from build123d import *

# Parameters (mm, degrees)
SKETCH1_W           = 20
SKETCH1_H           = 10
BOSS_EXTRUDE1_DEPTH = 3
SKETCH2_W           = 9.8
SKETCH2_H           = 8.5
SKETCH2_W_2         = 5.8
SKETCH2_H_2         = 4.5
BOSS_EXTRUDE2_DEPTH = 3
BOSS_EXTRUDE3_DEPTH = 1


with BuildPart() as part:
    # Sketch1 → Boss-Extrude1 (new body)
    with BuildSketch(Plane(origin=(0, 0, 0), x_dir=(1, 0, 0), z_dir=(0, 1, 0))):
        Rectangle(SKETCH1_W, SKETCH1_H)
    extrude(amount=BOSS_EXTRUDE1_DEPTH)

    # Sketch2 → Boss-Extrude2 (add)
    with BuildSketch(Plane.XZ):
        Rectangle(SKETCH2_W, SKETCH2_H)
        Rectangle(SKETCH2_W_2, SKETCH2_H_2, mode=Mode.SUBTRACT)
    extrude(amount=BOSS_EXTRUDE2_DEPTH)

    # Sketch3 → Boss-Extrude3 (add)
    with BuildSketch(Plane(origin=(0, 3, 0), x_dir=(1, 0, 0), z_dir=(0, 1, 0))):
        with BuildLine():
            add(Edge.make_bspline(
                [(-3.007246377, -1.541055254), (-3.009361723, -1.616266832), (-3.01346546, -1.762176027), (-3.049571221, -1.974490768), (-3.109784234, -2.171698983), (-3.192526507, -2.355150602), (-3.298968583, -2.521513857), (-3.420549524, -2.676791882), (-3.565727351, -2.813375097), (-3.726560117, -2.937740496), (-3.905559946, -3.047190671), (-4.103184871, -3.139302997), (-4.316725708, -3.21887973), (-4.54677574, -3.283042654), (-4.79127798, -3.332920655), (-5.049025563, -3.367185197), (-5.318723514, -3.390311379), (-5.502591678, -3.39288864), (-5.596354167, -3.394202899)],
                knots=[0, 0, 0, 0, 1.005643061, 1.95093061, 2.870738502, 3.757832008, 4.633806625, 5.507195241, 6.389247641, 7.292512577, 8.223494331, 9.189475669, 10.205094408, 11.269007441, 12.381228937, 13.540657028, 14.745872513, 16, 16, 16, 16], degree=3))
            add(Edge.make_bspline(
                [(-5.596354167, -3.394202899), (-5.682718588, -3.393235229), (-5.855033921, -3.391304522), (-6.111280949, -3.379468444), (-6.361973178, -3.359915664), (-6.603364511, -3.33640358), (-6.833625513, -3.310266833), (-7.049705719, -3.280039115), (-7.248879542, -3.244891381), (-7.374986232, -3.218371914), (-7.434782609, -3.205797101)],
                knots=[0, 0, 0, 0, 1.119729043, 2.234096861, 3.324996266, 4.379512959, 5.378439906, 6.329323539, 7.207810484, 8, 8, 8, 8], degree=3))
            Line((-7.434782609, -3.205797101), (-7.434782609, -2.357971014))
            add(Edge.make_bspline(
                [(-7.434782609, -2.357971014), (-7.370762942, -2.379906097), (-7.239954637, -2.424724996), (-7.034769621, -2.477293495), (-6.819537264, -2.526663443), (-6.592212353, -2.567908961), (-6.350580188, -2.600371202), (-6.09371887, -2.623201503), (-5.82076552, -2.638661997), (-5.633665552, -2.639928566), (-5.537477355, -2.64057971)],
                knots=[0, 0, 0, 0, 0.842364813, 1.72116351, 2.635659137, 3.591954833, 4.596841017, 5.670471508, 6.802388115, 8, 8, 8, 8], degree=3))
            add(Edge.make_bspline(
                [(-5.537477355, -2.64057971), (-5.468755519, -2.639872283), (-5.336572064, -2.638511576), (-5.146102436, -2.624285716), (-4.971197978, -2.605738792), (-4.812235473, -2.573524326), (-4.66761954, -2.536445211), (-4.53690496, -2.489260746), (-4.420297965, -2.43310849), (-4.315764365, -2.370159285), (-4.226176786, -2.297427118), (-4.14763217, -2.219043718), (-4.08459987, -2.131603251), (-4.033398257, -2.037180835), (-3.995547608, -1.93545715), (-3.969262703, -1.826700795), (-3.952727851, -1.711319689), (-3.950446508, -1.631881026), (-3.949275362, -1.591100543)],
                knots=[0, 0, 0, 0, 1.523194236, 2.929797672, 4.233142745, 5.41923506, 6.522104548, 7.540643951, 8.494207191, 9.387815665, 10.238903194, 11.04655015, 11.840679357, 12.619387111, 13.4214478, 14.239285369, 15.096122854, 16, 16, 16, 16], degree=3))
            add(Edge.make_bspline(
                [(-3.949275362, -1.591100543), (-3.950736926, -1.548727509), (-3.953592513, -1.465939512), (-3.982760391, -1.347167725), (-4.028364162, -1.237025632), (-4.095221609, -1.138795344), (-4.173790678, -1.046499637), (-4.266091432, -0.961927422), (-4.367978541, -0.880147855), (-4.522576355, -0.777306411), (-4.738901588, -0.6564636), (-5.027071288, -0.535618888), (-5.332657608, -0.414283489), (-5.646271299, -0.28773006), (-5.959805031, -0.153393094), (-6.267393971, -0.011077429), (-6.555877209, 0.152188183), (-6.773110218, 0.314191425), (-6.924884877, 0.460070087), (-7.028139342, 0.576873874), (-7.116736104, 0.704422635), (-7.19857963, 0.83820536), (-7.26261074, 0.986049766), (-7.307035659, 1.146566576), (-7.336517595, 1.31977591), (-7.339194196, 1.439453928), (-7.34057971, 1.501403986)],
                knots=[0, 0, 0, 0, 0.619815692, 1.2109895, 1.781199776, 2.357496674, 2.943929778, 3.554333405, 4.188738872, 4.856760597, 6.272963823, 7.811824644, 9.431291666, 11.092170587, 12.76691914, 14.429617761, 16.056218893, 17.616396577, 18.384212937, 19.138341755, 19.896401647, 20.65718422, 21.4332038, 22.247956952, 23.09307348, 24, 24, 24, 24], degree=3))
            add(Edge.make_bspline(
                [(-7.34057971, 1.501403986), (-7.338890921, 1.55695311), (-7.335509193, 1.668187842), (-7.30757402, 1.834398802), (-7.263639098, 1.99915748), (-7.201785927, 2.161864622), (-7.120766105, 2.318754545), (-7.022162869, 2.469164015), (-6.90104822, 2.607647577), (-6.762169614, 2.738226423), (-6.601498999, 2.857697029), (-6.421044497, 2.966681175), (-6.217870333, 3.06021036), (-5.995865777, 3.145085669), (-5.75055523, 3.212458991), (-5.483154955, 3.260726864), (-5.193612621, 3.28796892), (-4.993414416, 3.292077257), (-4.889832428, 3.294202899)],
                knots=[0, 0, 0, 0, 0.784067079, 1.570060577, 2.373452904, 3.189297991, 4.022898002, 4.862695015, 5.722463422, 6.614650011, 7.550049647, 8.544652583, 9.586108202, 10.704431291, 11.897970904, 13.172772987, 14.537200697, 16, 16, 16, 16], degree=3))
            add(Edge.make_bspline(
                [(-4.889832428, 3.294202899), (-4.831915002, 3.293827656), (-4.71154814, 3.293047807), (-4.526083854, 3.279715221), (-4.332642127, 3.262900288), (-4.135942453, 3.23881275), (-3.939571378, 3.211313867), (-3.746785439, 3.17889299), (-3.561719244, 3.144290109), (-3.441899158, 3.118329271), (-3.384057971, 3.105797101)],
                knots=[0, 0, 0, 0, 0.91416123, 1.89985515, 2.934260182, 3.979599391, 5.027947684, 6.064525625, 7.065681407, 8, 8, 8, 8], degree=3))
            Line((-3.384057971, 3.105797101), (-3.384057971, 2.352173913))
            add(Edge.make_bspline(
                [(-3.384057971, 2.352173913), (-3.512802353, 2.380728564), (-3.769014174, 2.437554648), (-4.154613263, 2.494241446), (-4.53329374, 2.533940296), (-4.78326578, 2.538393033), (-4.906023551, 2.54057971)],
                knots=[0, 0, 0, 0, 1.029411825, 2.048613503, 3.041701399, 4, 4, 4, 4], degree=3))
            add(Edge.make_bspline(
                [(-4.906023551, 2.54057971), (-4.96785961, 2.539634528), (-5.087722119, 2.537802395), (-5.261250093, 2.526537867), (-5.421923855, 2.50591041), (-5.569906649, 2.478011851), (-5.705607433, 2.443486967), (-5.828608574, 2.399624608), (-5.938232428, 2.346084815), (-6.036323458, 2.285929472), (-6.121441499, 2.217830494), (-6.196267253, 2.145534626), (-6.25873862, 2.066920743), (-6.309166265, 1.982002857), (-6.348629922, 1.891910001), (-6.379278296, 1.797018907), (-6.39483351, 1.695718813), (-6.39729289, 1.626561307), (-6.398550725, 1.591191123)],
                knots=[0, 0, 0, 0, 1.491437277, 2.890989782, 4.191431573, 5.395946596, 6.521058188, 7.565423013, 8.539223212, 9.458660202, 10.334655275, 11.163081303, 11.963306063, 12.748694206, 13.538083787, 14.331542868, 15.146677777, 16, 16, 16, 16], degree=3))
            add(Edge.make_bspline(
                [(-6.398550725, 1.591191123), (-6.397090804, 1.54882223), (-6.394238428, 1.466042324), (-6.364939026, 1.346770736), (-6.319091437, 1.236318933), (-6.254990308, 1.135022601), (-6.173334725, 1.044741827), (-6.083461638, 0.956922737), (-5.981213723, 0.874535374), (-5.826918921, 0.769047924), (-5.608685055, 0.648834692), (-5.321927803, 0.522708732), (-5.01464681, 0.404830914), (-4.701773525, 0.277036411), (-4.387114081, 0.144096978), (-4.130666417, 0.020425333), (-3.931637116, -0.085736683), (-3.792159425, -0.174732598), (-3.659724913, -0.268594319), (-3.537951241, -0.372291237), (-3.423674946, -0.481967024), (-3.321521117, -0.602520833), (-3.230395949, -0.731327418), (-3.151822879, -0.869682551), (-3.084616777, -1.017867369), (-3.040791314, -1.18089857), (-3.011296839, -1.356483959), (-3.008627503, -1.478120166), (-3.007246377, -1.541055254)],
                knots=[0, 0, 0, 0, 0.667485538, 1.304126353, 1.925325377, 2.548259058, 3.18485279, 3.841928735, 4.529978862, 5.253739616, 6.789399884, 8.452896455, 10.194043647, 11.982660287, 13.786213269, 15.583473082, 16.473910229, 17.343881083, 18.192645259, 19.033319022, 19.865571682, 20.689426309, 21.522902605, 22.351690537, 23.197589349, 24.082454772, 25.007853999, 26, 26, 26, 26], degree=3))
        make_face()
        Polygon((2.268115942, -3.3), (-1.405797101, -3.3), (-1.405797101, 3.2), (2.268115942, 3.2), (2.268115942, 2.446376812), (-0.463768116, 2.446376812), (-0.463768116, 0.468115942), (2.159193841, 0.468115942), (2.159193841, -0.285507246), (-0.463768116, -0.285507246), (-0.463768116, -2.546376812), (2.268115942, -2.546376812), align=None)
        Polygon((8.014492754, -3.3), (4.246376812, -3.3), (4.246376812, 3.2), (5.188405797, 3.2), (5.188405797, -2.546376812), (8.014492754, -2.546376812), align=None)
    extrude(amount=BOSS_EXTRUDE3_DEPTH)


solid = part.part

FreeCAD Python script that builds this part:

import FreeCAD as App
import Part
import Sketcher

V = App.Vector

doc = App.newDocument("Part")
params = doc.addObject("Spreadsheet::Sheet", "Params")
for row, (alias, value) in enumerate([
    ("sketch1_width", "20 mm"),
    ("sketch1_height", "10 mm"),
    ("pad1_length", "3 mm"),
    ("sketch2_width", "9.8 mm"),
    ("sketch2_width2", "5.8 mm"),
    ("sketch2_height", "8.5 mm"),
    ("sketch2_height2", "4.5 mm"),
    ("pad2_length", "3 mm"),
    ("sketch3_height", "6.5 mm"),
    ("pad3_length", "1 mm"),
], start=1):
    params.set(f"A{row}", alias)
    params.set(f"B{row}", "=" + value)
    params.setAlias(f"B{row}", alias)

body = doc.addObject("PartDesign::Body", "Body")

# Sketch on XZ plane
sketch1 = body.newObject("Sketcher::SketchObject", "Sketch")
sketch1.AttachmentSupport = (doc.getObject("XZ_Plane"), [""])
sketch1.MapMode = "FlatFace"
sketch1.addGeometry([
    Part.LineSegment(V(-10, -5, 0), V(-10, 5, 0)),
    Part.LineSegment(V(-10, 5, 0), V(10, 5, 0)),
    Part.LineSegment(V(10, 5, 0), V(10, -5, 0)),
    Part.LineSegment(V(10, -5, 0), V(-10, -5, 0)),
], False)
sketch1.addConstraint([
    Sketcher.Constraint("Coincident", 0, 2, 1, 1),
    Sketcher.Constraint("Coincident", 1, 2, 2, 1),
    Sketcher.Constraint("Coincident", 2, 2, 3, 1),
    Sketcher.Constraint("Coincident", 3, 2, 0, 1),
    Sketcher.Constraint("Vertical", 0),
    Sketcher.Constraint("Horizontal", 1),
    Sketcher.Constraint("Vertical", 2),
    Sketcher.Constraint("Horizontal", 3),
    Sketcher.Constraint("Symmetric", 0, 2, 2, 2, -1, 1),
    Sketcher.Constraint("DistanceX", 1, 1, 1, 2, 20.0),
    Sketcher.Constraint("DistanceY", 0, 1, 0, 2, 10.0),
])
sketch1.setExpression("Constraints[9]", "Params.sketch1_width")
sketch1.setExpression("Constraints[10]", "Params.sketch1_height")
pad1 = body.newObject("PartDesign::Pad", "Pad")
pad1.Profile = sketch1
pad1.setExpression("Length", "Params.pad1_length")
pad1.Reversed = True

# Sketch on XZ plane
sketch2 = body.newObject("Sketcher::SketchObject", "Sketch001")
sketch2.AttachmentSupport = (doc.getObject("XZ_Plane"), [""])
sketch2.MapMode = "FlatFace"
sketch2.addGeometry([
    Part.LineSegment(V(-4.9, 4.2, 0), V(-4.9, -4.2, 0)),  # 0
    Part.LineSegment(V(-4.9, -4.2, 0), V(4.9, -4.2, 0)),  # 1
    Part.LineSegment(V(4.9, -4.2, 0), V(4.9, 4.2, 0)),  # 2
    Part.LineSegment(V(4.9, 4.2, 0), V(-4.9, 4.2, 0)),  # 3
    Part.LineSegment(V(2.9, -2.2, 0), V(-2.9, -2.2, 0)),  # 4
    Part.LineSegment(V(-2.9, -2.2, 0), V(-2.9, 2.2, 0)),  # 5
    Part.LineSegment(V(-2.9, 2.2, 0), V(2.9, 2.2, 0)),  # 6
    Part.LineSegment(V(2.9, 2.2, 0), V(2.9, -2.2, 0)),  # 7
], False)
sketch2.addConstraint([
    Sketcher.Constraint("Coincident", 0, 2, 1, 1),
    Sketcher.Constraint("Coincident", 1, 2, 2, 1),
    Sketcher.Constraint("Coincident", 2, 2, 3, 1),
    Sketcher.Constraint("Coincident", 3, 2, 0, 1),
    Sketcher.Constraint("Coincident", 4, 2, 5, 1),
    Sketcher.Constraint("Coincident", 5, 2, 6, 1),
    Sketcher.Constraint("Coincident", 6, 2, 7, 1),
    Sketcher.Constraint("Coincident", 7, 2, 4, 1),
    Sketcher.Constraint("Vertical", 0),
    Sketcher.Constraint("Horizontal", 1),
    Sketcher.Constraint("Vertical", 2),
    Sketcher.Constraint("Horizontal", 3),
    Sketcher.Constraint("Horizontal", 4),
    Sketcher.Constraint("Vertical", 5),
    Sketcher.Constraint("Horizontal", 6),
    Sketcher.Constraint("Vertical", 7),
    Sketcher.Constraint("Symmetric", 0, 2, 2, 2, -1, 1),
    Sketcher.Constraint("Symmetric", 4, 2, 6, 2, -1, 1),
    Sketcher.Constraint("DistanceX", 1, 1, 1, 2, 9.8),
    Sketcher.Constraint("DistanceX", 4, 2, 4, 1, 5.8),
    Sketcher.Constraint("DistanceY", 0, 2, 0, 1, 8.5),
    Sketcher.Constraint("DistanceY", 5, 1, 5, 2, 4.5),
])
sketch2.setExpression("Constraints[18]", "Params.sketch2_width")
sketch2.setExpression("Constraints[19]", "Params.sketch2_width2")
sketch2.setExpression("Constraints[20]", "Params.sketch2_height")
sketch2.setExpression("Constraints[21]", "Params.sketch2_height2")
pad2 = body.newObject("PartDesign::Pad", "Pad001")
pad2.Profile = sketch2
pad2.setExpression("Length", "Params.pad2_length")

# Sketch on XZ plane
sketch3 = body.newObject("Sketcher::SketchObject", "Sketch002")
sketch3.AttachmentSupport = (doc.getObject("XZ_Plane"), [""])
sketch3.MapMode = "FlatFace"
sketch3.AttachmentOffset = App.Placement(V(0, 0, -3), App.Rotation())
sketch3.addGeometry([
    Part.BSplineCurve([V(-3.007246, 1.541055, 0), V(-3.009362, 1.616267, 0), V(-3.013465, 1.762176, 0), V(-3.049571, 1.974491, 0), V(-3.109784, 2.171699, 0), V(-3.192527, 2.355151, 0), V(-3.298969, 2.521514, 0), V(-3.42055, 2.676792, 0), V(-3.565727, 2.813375, 0), V(-3.72656, 2.93774, 0), V(-3.90556, 3.047191, 0), V(-4.103185, 3.139303, 0), V(-4.316726, 3.21888, 0), V(-4.546776, 3.283043, 0), V(-4.791278, 3.332921, 0), V(-5.049026, 3.367185, 0), V(-5.318724, 3.390311, 0), V(-5.502592, 3.392889, 0), V(-5.596354, 3.394203, 0)], [4, 1, 1, 1, 1, 1, 1, 1, 1, 1, 1, 1, 1, 1, 1, 1, 4], [0, 1.005643061, 1.95093061, 2.870738502, 3.757832008, 4.633806625, 5.507195241, 6.389247641, 7.292512577, 8.223494331, 9.189475669, 10.205094408, 11.269007441, 12.381228937, 13.540657028, 14.745872513, 16], False, 3, [1, 1, 1, 1, 1, 1, 1, 1, 1, 1, 1, 1, 1, 1, 1, 1, 1, 1, 1], False),  # 0
    Part.BSplineCurve([V(-6.398551, -1.591191, 0), V(-6.397091, -1.548822, 0), V(-6.394238, -1.466042, 0), V(-6.364939, -1.346771, 0), V(-6.319091, -1.236319, 0), V(-6.25499, -1.135023, 0), V(-6.173335, -1.044742, 0), V(-6.083462, -0.956923, 0), V(-5.981214, -0.874535, 0), V(-5.826919, -0.769048, 0), V(-5.608685, -0.648835, 0), V(-5.321928, -0.522709, 0), V(-5.014647, -0.404831, 0), V(-4.701774, -0.277036, 0), V(-4.387114, -0.144097, 0), V(-4.130666, -0.020425, 0), V(-3.931637, 0.085737, 0), V(-3.792159, 0.174733, 0), V(-3.659725, 0.268594, 0), V(-3.537951, 0.372291, 0), V(-3.423675, 0.481967, 0), V(-3.321521, 0.602521, 0), V(-3.230396, 0.731327, 0), V(-3.151823, 0.869683, 0), V(-3.084617, 1.017867, 0), V(-3.040791, 1.180899, 0), V(-3.011297, 1.356484, 0), V(-3.008628, 1.47812, 0), V(-3.007246, 1.541055, 0)], [4, 1, 1, 1, 1, 1, 1, 1, 1, 1, 1, 1, 1, 1, 1, 1, 1, 1, 1, 1, 1, 1, 1, 1, 1, 1, 4], [0, 0.667485538, 1.304126353, 1.925325377, 2.548259058, 3.18485279, 3.841928735, 4.529978862, 5.253739616, 6.789399884, 8.452896455, 10.194043647, 11.982660287, 13.786213269, 15.583473082, 16.473910229, 17.343881083, 18.192645259, 19.033319022, 19.865571682, 20.689426309, 21.522902605, 22.351690537, 23.197589349, 24.082454772, 25.007853999, 26], False, 3, [1, 1, 1, 1, 1, 1, 1, 1, 1, 1, 1, 1, 1, 1, 1, 1, 1, 1, 1, 1, 1, 1, 1, 1, 1, 1, 1, 1, 1], False),  # 1
    Part.BSplineCurve([V(-4.906024, -2.54058, 0), V(-4.96786, -2.539635, 0), V(-5.087722, -2.537802, 0), V(-5.26125, -2.526538, 0), V(-5.421924, -2.50591, 0), V(-5.569907, -2.478012, 0), V(-5.705607, -2.443487, 0), V(-5.828609, -2.399625, 0), V(-5.938232, -2.346085, 0), V(-6.036323, -2.285929, 0), V(-6.121441, -2.21783, 0), V(-6.196267, -2.145535, 0), V(-6.258739, -2.066921, 0), V(-6.309166, -1.982003, 0), V(-6.34863, -1.89191, 0), V(-6.379278, -1.797019, 0), V(-6.394834, -1.695719, 0), V(-6.397293, -1.626561, 0), V(-6.398551, -1.591191, 0)], [4, 1, 1, 1, 1, 1, 1, 1, 1, 1, 1, 1, 1, 1, 1, 1, 4], [0, 1.491437277, 2.890989782, 4.191431573, 5.395946596, 6.521058188, 7.565423013, 8.539223212, 9.458660202, 10.334655275, 11.163081303, 11.963306063, 12.748694206, 13.538083787, 14.331542868, 15.146677777, 16], False, 3, [1, 1, 1, 1, 1, 1, 1, 1, 1, 1, 1, 1, 1, 1, 1, 1, 1, 1, 1], False),  # 2
    Part.BSplineCurve([V(-3.384058, -2.352174, 0), V(-3.512802, -2.380729, 0), V(-3.769014, -2.437555, 0), V(-4.154613, -2.494241, 0), V(-4.533294, -2.53394, 0), V(-4.783266, -2.538393, 0), V(-4.906024, -2.54058, 0)], [4, 1, 1, 1, 4], [0, 1.029411825, 2.048613503, 3.041701399, 4], False, 3, [1, 1, 1, 1, 1, 1, 1], False),  # 3
    Part.LineSegment(V(-3.384058, -2.352174, 0), V(-3.384058, -3.105797, 0)),  # 4
    Part.BSplineCurve([V(-4.889832, -3.294203, 0), V(-4.831915, -3.293828, 0), V(-4.711548, -3.293048, 0), V(-4.526084, -3.279715, 0), V(-4.332642, -3.2629, 0), V(-4.135942, -3.238813, 0), V(-3.939571, -3.211314, 0), V(-3.746785, -3.178893, 0), V(-3.561719, -3.14429, 0), V(-3.441899, -3.118329, 0), V(-3.384058, -3.105797, 0)], [4, 1, 1, 1, 1, 1, 1, 1, 4], [0, 0.91416123, 1.89985515, 2.934260182, 3.979599391, 5.027947684, 6.064525625, 7.065681407, 8], False, 3, [1, 1, 1, 1, 1, 1, 1, 1, 1, 1, 1], False),  # 5
    Part.BSplineCurve([V(-7.34058, -1.501404, 0), V(-7.338891, -1.556953, 0), V(-7.335509, -1.668188, 0), V(-7.307574, -1.834399, 0), V(-7.263639, -1.999157, 0), V(-7.201786, -2.161865, 0), V(-7.120766, -2.318755, 0), V(-7.022163, -2.469164, 0), V(-6.901048, -2.607648, 0), V(-6.76217, -2.738226, 0), V(-6.601499, -2.857697, 0), V(-6.421044, -2.966681, 0), V(-6.21787, -3.06021, 0), V(-5.995866, -3.145086, 0), V(-5.750555, -3.212459, 0), V(-5.483155, -3.260727, 0), V(-5.193613, -3.287969, 0), V(-4.993414, -3.292077, 0), V(-4.889832, -3.294203, 0)], [4, 1, 1, 1, 1, 1, 1, 1, 1, 1, 1, 1, 1, 1, 1, 1, 4], [0, 0.784067079, 1.570060577, 2.373452904, 3.189297991, 4.022898002, 4.862695015, 5.722463422, 6.614650011, 7.550049647, 8.544652583, 9.586108202, 10.704431291, 11.897970904, 13.172772987, 14.537200697, 16], False, 3, [1, 1, 1, 1, 1, 1, 1, 1, 1, 1, 1, 1, 1, 1, 1, 1, 1, 1, 1], False),  # 6
    Part.BSplineCurve([V(-3.949275, 1.591101, 0), V(-3.950737, 1.548728, 0), V(-3.953593, 1.46594, 0), V(-3.98276, 1.347168, 0), V(-4.028364, 1.237026, 0), V(-4.095222, 1.138795, 0), V(-4.173791, 1.0465, 0), V(-4.266091, 0.961927, 0), V(-4.367979, 0.880148, 0), V(-4.522576, 0.777306, 0), V(-4.738902, 0.656464, 0), V(-5.027071, 0.535619, 0), V(-5.332658, 0.414283, 0), V(-5.646271, 0.28773, 0), V(-5.959805, 0.153393, 0), V(-6.267394, 0.011077, 0), V(-6.555877, -0.152188, 0), V(-6.77311, -0.314191, 0), V(-6.924885, -0.46007, 0), V(-7.028139, -0.576874, 0), V(-7.116736, -0.704423, 0), V(-7.19858, -0.838205, 0), V(-7.262611, -0.98605, 0), V(-7.307036, -1.146567, 0), V(-7.336518, -1.319776, 0), V(-7.339194, -1.439454, 0), V(-7.34058, -1.501404, 0)], [4, 1, 1, 1, 1, 1, 1, 1, 1, 1, 1, 1, 1, 1, 1, 1, 1, 1, 1, 1, 1, 1, 1, 1, 4], [0, 0.619815692, 1.2109895, 1.781199776, 2.357496674, 2.943929778, 3.554333405, 4.188738872, 4.856760597, 6.272963823, 7.811824644, 9.431291666, 11.092170587, 12.76691914, 14.429617761, 16.056218893, 17.616396577, 18.384212937, 19.138341755, 19.896401647, 20.65718422, 21.4332038, 22.247956952, 23.09307348, 24], False, 3, [1, 1, 1, 1, 1, 1, 1, 1, 1, 1, 1, 1, 1, 1, 1, 1, 1, 1, 1, 1, 1, 1, 1, 1, 1, 1, 1], False),  # 7
    Part.BSplineCurve([V(-5.537477, 2.64058, 0), V(-5.468756, 2.639872, 0), V(-5.336572, 2.638512, 0), V(-5.146102, 2.624286, 0), V(-4.971198, 2.605739, 0), V(-4.812235, 2.573524, 0), V(-4.66762, 2.536445, 0), V(-4.536905, 2.489261, 0), V(-4.420298, 2.433108, 0), V(-4.315764, 2.370159, 0), V(-4.226177, 2.297427, 0), V(-4.147632, 2.219044, 0), V(-4.0846, 2.131603, 0), V(-4.033398, 2.037181, 0), V(-3.995548, 1.935457, 0), V(-3.969263, 1.826701, 0), V(-3.952728, 1.71132, 0), V(-3.950447, 1.631881, 0), V(-3.949275, 1.591101, 0)], [4, 1, 1, 1, 1, 1, 1, 1, 1, 1, 1, 1, 1, 1, 1, 1, 4], [0, 1.523194236, 2.929797672, 4.233142745, 5.41923506, 6.522104548, 7.540643951, 8.494207191, 9.387815665, 10.238903194, 11.04655015, 11.840679357, 12.619387111, 13.4214478, 14.239285369, 15.096122854, 16], False, 3, [1, 1, 1, 1, 1, 1, 1, 1, 1, 1, 1, 1, 1, 1, 1, 1, 1, 1, 1], False),  # 8
    Part.BSplineCurve([V(-7.434783, 2.357971, 0), V(-7.370763, 2.379906, 0), V(-7.239955, 2.424725, 0), V(-7.03477, 2.477293, 0), V(-6.819537, 2.526663, 0), V(-6.592212, 2.567909, 0), V(-6.35058, 2.600371, 0), V(-6.093719, 2.623202, 0), V(-5.820766, 2.638662, 0), V(-5.633666, 2.639929, 0), V(-5.537477, 2.64058, 0)], [4, 1, 1, 1, 1, 1, 1, 1, 4], [0, 0.842364813, 1.72116351, 2.635659137, 3.591954833, 4.596841017, 5.670471508, 6.802388115, 8], False, 3, [1, 1, 1, 1, 1, 1, 1, 1, 1, 1, 1], False),  # 9
    Part.LineSegment(V(-7.434783, 2.357971, 0), V(-7.434783, 3.205797, 0)),  # 10
    Part.BSplineCurve([V(-5.596354, 3.394203, 0), V(-5.682719, 3.393235, 0), V(-5.855034, 3.391305, 0), V(-6.111281, 3.379468, 0), V(-6.361973, 3.359916, 0), V(-6.603365, 3.336404, 0), V(-6.833626, 3.310267, 0), V(-7.049706, 3.280039, 0), V(-7.24888, 3.244891, 0), V(-7.374986, 3.218372, 0), V(-7.434783, 3.205797, 0)], [4, 1, 1, 1, 1, 1, 1, 1, 4], [0, 1.119729043, 2.234096861, 3.324996266, 4.379512959, 5.378439906, 6.329323539, 7.207810484, 8], False, 3, [1, 1, 1, 1, 1, 1, 1, 1, 1, 1, 1], False),  # 11
    Part.LineSegment(V(-1.405797, 3.3, 0), V(2.268116, 3.3, 0)),  # 12
    Part.LineSegment(V(2.268116, 3.3, 0), V(2.268116, 2.546377, 0)),  # 13
    Part.LineSegment(V(2.268116, 2.546377, 0), V(-0.463768, 2.546377, 0)),  # 14
    Part.LineSegment(V(-0.463768, 2.546377, 0), V(-0.463768, 0.285507, 0)),  # 15
    Part.LineSegment(V(-0.463768, 0.285507, 0), V(2.159194, 0.285507, 0)),  # 16
    Part.LineSegment(V(2.159194, 0.285507, 0), V(2.159194, -0.468116, 0)),  # 17
    Part.LineSegment(V(2.159194, -0.468116, 0), V(-0.463768, -0.468116, 0)),  # 18
    Part.LineSegment(V(-0.463768, -0.468116, 0), V(-0.463768, -2.446377, 0)),  # 19
    Part.LineSegment(V(-0.463768, -2.446377, 0), V(2.268116, -2.446377, 0)),  # 20
    Part.LineSegment(V(2.268116, -2.446377, 0), V(2.268116, -3.2, 0)),  # 21
    Part.LineSegment(V(2.268116, -3.2, 0), V(-1.405797, -3.2, 0)),  # 22
    Part.LineSegment(V(-1.405797, -3.2, 0), V(-1.405797, 3.3, 0)),  # 23
    Part.LineSegment(V(4.246377, 3.3, 0), V(8.014493, 3.3, 0)),  # 24
    Part.LineSegment(V(8.014493, 3.3, 0), V(8.014493, 2.546377, 0)),  # 25
    Part.LineSegment(V(8.014493, 2.546377, 0), V(5.188406, 2.546377, 0)),  # 26
    Part.LineSegment(V(5.188406, 2.546377, 0), V(5.188406, -3.2, 0)),  # 27
    Part.LineSegment(V(5.188406, -3.2, 0), V(4.246377, -3.2, 0)),  # 28
    Part.LineSegment(V(4.246377, -3.2, 0), V(4.246377, 3.3, 0)),  # 29
], False)
sketch3.addConstraint([
    Sketcher.Constraint("Block", 0),
    Sketcher.Constraint("Block", 1),
    Sketcher.Constraint("Block", 2),
    Sketcher.Constraint("Block", 3),
    Sketcher.Constraint("Block", 5),
    Sketcher.Constraint("Block", 6),
    Sketcher.Constraint("Block", 7),
    Sketcher.Constraint("Block", 8),
    Sketcher.Constraint("Block", 9),
    Sketcher.Constraint("Block", 11),
    Sketcher.Constraint("Coincident", 3, 1, 4, 1),
    Sketcher.Constraint("Coincident", 4, 2, 5, 2),
    Sketcher.Constraint("Coincident", 9, 1, 10, 1),
    Sketcher.Constraint("Coincident", 10, 2, 11, 2),
    Sketcher.Constraint("Coincident", 12, 2, 13, 1),
    Sketcher.Constraint("Coincident", 13, 2, 14, 1),
    Sketcher.Constraint("Coincident", 14, 2, 15, 1),
    Sketcher.Constraint("Coincident", 15, 2, 16, 1),
    Sketcher.Constraint("Coincident", 16, 2, 17, 1),
    Sketcher.Constraint("Coincident", 17, 2, 18, 1),
    Sketcher.Constraint("Coincident", 18, 2, 19, 1),
    Sketcher.Constraint("Coincident", 19, 2, 20, 1),
    Sketcher.Constraint("Coincident", 20, 2, 21, 1),
    Sketcher.Constraint("Coincident", 21, 2, 22, 1),
    Sketcher.Constraint("Coincident", 22, 2, 23, 1),
    Sketcher.Constraint("Coincident", 23, 2, 12, 1),
    Sketcher.Constraint("Coincident", 24, 2, 25, 1),
    Sketcher.Constraint("Coincident", 25, 2, 26, 1),
    Sketcher.Constraint("Coincident", 26, 2, 27, 1),
    Sketcher.Constraint("Coincident", 27, 2, 28, 1),
    Sketcher.Constraint("Coincident", 28, 2, 29, 1),
    Sketcher.Constraint("Coincident", 29, 2, 24, 1),
    Sketcher.Constraint("Horizontal", 12),
    Sketcher.Constraint("Vertical", 13),
    Sketcher.Constraint("Horizontal", 14),
    Sketcher.Constraint("Vertical", 15),
    Sketcher.Constraint("Horizontal", 16),
    Sketcher.Constraint("Vertical", 17),
    Sketcher.Constraint("Horizontal", 18),
    Sketcher.Constraint("Vertical", 19),
    Sketcher.Constraint("Horizontal", 20),
    Sketcher.Constraint("Vertical", 21),
    Sketcher.Constraint("Horizontal", 22),
    Sketcher.Constraint("Vertical", 23),
    Sketcher.Constraint("Horizontal", 24),
    Sketcher.Constraint("Vertical", 25),
    Sketcher.Constraint("Horizontal", 26),
    Sketcher.Constraint("Vertical", 27),
    Sketcher.Constraint("Horizontal", 28),
    Sketcher.Constraint("Vertical", 29),
    Sketcher.Constraint("Horizontal", 23, 2, 24, 2),
    Sketcher.Constraint("Horizontal", 14, 2, 25, 2),
    Sketcher.Constraint("Horizontal", 22, 2, 27, 2),
    Sketcher.Constraint("Vertical", 15, 2, 18, 2),
    Sketcher.Constraint("Vertical", 13, 2, 20, 2),
    Sketcher.Constraint("Equal", 4, 13),
    Sketcher.Constraint("Equal", 13, 17),
    Sketcher.Constraint("Equal", 17, 21),
    Sketcher.Constraint("DistanceY", 23, 1, 23, 2, 6.5),
    Sketcher.Constraint("DistanceY", -1, 1, 12, 2, 3.3),
    Sketcher.Constraint("DistanceX", 16, 1, 16, 2, 2.622962),
    Sketcher.Constraint("DistanceX", 28, 2, 28, 1, 0.942029),
    Sketcher.Constraint("DistanceY", 15, 2, 15, 1, 2.26087),
    Sketcher.Constraint("DistanceX", 10, 2, 12, 2, 9.702899),
    Sketcher.Constraint("DistanceX", 16, 2, 24, 2, 5.855299),
    Sketcher.Constraint("DistanceX", 12, 1, 12, 2, 3.673913),
    Sketcher.Constraint("DistanceX", 14, 2, 14, 1, 2.731884),
    Sketcher.Constraint("DistanceX", 24, 1, 24, 2, 3.768116),
])
sketch3.setExpression("Constraints[58]", "Params.sketch3_height")
pad3 = body.newObject("PartDesign::Pad", "Pad002")
pad3.Profile = sketch3
pad3.setExpression("Length", "Params.pad3_length")
pad3.Reversed = True

doc.recompute()
